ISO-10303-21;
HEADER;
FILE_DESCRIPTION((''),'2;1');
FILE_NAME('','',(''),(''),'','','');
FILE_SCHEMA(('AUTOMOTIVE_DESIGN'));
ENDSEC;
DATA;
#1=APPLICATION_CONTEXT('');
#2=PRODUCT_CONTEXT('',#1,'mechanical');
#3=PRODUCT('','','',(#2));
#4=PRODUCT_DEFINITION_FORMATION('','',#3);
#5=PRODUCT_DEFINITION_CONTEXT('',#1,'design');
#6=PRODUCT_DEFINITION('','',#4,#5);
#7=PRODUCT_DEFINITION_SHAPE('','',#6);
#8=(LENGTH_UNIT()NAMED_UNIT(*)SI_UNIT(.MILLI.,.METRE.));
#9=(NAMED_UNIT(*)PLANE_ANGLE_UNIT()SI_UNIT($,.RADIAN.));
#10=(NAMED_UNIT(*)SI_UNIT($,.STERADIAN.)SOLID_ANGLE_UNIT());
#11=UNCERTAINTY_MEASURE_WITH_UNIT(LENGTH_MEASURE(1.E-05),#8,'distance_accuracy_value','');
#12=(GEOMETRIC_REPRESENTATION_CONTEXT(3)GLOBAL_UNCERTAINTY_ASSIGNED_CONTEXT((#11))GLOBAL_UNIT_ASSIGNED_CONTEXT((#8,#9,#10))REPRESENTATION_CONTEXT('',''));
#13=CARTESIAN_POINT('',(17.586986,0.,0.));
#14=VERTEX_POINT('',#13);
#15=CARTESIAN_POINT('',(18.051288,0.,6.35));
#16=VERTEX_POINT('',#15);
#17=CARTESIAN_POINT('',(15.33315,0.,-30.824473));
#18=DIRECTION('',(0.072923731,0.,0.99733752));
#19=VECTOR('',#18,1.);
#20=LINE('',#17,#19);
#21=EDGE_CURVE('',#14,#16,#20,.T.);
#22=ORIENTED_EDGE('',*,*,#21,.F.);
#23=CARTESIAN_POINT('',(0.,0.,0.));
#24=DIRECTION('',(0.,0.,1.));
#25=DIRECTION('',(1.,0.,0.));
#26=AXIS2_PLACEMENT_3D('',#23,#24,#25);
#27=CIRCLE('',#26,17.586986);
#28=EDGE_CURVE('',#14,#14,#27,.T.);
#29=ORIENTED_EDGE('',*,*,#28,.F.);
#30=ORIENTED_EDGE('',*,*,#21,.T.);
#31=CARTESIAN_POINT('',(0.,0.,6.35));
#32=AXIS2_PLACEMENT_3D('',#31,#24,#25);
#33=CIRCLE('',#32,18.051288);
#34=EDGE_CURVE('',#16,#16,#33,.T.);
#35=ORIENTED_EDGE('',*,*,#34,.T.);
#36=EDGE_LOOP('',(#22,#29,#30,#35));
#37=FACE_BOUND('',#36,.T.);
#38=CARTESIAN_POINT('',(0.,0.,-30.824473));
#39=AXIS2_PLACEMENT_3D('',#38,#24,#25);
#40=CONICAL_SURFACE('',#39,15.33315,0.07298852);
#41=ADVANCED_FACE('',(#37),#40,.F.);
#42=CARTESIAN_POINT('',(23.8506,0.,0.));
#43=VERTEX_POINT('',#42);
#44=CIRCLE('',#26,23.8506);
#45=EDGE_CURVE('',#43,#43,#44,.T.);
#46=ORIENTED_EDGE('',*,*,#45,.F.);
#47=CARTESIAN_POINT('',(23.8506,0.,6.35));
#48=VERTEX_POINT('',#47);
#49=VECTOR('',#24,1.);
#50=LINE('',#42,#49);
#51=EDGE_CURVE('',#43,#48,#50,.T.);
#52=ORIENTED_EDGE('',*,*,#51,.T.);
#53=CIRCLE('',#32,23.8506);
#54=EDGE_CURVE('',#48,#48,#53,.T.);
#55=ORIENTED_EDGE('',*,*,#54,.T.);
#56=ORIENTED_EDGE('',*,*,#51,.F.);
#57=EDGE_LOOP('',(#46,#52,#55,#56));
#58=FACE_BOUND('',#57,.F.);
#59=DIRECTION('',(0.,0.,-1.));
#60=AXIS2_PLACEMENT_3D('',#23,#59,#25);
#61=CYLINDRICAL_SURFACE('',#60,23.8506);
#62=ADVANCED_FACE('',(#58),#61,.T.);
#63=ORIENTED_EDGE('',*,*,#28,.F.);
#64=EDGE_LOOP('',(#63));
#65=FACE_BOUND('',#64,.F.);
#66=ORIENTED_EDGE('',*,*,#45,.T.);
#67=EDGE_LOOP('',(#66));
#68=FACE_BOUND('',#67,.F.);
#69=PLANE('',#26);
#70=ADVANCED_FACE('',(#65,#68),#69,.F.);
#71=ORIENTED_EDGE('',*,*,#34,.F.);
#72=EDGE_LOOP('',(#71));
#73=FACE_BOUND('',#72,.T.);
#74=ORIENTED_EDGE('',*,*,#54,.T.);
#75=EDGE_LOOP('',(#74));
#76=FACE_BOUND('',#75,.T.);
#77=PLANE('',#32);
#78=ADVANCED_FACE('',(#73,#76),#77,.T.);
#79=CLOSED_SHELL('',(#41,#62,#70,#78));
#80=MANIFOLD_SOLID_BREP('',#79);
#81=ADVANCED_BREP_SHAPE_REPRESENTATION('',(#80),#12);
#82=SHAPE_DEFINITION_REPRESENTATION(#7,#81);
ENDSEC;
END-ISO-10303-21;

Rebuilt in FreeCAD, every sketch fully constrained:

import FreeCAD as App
import Part
import Sketcher

V = App.Vector
Q = App.Units.Quantity

doc = App.newDocument("Part")
params = doc.addObject("Spreadsheet::Sheet", "Params")
for row, (alias, value) in enumerate([
    ("sketch1_diameter", "1.25 in"),
    ("sketch1_diameter2", "1.878 in"),
    ("pad1_length", "0.25 in"),
    ("groove_angle", "360 deg"),
], start=1):
    params.set(f"A{row}", alias)
    params.set(f"B{row}", "=" + value)
    params.setAlias(f"B{row}", alias)

body = doc.addObject("PartDesign::Body", "Body")

# Sketch on XY plane
sketch1 = body.newObject("Sketcher::SketchObject", "Sketch")
sketch1.AttachmentSupport = (doc.getObject("XY_Plane"), [""])
sketch1.MapMode = "FlatFace"
sketch1.addGeometry(Part.Circle(V(0, 0, 0), V(0, 0, 1), 24), False)
sketch1.addGeometry(Part.Circle(V(0, 0, 0), V(0, 0, 1), 16), False)
sketch1.addConstraint(Sketcher.Constraint("Coincident", 0, 3, -1, 1))
sketch1.addConstraint(Sketcher.Constraint("Coincident", 1, 3, -1, 1))
sketch1.addConstraint(Sketcher.Constraint("Diameter", 1, Q("1.25 in")))
sketch1.addConstraint(Sketcher.Constraint("Diameter", 0, Q("1.878 in")))
sketch1.setExpression("Constraints[2]", "Params.sketch1_diameter")
sketch1.setExpression("Constraints[3]", "Params.sketch1_diameter2")
pad1 = body.newObject("PartDesign::Pad", "Pad")
pad1.Profile = sketch1
pad1.setExpression("Length", "Params.pad1_length")

# Sketch on XZ plane
sketch2 = body.newObject("Sketcher::SketchObject", "Sketch001")
sketch2.AttachmentSupport = (doc.getObject("XZ_Plane"), [""])
sketch2.MapMode = "FlatFace"
sketch2.addGeometry(Part.LineSegment(V(18.4, 11.5, 0), V(15.3, 11.5, 0)), False)
sketch2.addGeometry(Part.LineSegment(V(15.3, 11.5, 0), V(15.3, -30.8, 0)), False)
sketch2.addGeometry(Part.LineSegment(V(15.3, -30.8, 0), V(18.4, 11.5, 0)), False)
sketch2.addConstraint(Sketcher.Constraint("Coincident", 0, 2, 1, 1))
sketch2.addConstraint(Sketcher.Constraint("Coincident", 1, 2, 2, 1))
sketch2.addConstraint(Sketcher.Constraint("Coincident", 2, 2, 0, 1))
sketch2.addConstraint(Sketcher.Constraint("Vertical", 1))
sketch2.addConstraint(Sketcher.Constraint("DistanceY", 1, 2, 2, 2, Q("42.3309 mm")))
sketch2.addConstraint(Sketcher.Constraint("Distance", 0, Q("3.09517 mm")))
sketch2.addConstraint(Sketcher.Constraint("DistanceY", 1, 2, 1, 1, Q("42.327666 mm")))
sketch2.addConstraint(Sketcher.Constraint("DistanceX", -1, 1, 0, 2, Q("15.33315 mm")))
sketch2.addConstraint(Sketcher.Constraint("DistanceY", -1, 1, 0, 2, Q("11.503193 mm")))
groove = body.newObject("PartDesign::Groove", "Groove")
groove.Profile = sketch2
groove.ReferenceAxis = (sketch2, ["V_Axis"])
groove.setExpression("Angle", "Params.groove_angle")

doc.recompute()
